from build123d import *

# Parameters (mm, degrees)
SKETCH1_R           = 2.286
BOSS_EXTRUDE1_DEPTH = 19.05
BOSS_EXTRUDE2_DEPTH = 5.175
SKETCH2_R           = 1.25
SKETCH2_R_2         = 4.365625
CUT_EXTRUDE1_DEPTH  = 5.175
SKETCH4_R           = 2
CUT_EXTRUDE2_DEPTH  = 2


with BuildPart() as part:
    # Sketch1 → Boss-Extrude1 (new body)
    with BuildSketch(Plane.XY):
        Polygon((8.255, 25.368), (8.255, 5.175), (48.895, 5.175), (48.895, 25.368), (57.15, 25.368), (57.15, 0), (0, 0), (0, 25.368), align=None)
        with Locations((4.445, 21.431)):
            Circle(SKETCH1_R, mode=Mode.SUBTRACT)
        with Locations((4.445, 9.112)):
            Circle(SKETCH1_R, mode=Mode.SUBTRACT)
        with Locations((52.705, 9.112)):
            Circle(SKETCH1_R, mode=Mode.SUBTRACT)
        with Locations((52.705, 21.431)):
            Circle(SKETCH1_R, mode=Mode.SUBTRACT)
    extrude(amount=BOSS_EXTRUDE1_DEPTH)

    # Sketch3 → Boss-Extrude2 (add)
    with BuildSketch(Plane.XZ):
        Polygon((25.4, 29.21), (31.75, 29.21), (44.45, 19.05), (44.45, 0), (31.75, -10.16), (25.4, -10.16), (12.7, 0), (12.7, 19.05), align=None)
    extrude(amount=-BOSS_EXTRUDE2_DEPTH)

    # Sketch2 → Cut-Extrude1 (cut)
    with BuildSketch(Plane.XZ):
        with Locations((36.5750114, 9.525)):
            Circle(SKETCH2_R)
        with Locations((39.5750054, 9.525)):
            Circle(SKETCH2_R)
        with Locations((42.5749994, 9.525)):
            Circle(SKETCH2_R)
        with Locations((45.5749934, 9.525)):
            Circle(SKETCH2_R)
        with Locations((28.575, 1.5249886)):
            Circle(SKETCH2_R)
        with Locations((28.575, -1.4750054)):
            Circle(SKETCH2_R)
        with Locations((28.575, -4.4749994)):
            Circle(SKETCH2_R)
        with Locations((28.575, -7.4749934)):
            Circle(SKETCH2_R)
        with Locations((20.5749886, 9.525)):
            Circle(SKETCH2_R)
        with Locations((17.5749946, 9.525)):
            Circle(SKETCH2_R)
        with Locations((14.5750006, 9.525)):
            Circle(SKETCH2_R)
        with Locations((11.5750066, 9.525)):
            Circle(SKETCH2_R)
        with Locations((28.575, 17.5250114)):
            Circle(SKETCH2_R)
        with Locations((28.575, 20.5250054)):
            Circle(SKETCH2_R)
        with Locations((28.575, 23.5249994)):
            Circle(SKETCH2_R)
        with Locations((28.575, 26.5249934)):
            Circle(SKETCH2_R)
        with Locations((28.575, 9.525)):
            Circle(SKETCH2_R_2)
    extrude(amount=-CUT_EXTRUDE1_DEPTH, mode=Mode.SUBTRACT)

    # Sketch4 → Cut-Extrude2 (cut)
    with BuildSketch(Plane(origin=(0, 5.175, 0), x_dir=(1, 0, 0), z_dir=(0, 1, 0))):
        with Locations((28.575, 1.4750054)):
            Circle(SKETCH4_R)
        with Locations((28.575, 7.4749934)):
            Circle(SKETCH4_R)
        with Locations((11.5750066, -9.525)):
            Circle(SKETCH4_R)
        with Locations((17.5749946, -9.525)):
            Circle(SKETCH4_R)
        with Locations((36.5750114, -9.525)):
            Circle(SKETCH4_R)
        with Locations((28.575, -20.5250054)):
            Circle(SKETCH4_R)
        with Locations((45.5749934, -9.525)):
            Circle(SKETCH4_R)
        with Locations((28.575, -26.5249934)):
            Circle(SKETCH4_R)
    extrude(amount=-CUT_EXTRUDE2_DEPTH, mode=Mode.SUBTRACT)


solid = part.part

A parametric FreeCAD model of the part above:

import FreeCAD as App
import Part
import Sketcher
from FreeCAD import Vector
Q = App.Units.Quantity

doc = App.newDocument("Part")
body = doc.addObject("PartDesign::Body", "Body")

# Sketch on XY plane
sketch1 = body.newObject("Sketcher::SketchObject", "Sketch")
sketch1.AttachmentSupport = (doc.getObject("XY_Plane"), [""])
sketch1.MapMode = "FlatFace"
sketch1.addGeometry([
    Part.LineSegment(Vector(8.3, 5.2, 0), Vector(8.3, 25.4, 0)),  # 0
    Part.LineSegment(Vector(8.3, 25.4, 0), Vector(0, 25.4, 0)),  # 1
    Part.LineSegment(Vector(0, 25.4, 0), Vector(0, 0, 0)),  # 2
    Part.LineSegment(Vector(0, 0, 0), Vector(57.1, 0, 0)),  # 3
    Part.LineSegment(Vector(57.1, 0, 0), Vector(57.1, 25.4, 0)),  # 4
    Part.LineSegment(Vector(57.1, 25.4, 0), Vector(48.9, 25.4, 0)),  # 5
    Part.LineSegment(Vector(48.9, 25.4, 0), Vector(48.9, 5.2, 0)),  # 6
    Part.LineSegment(Vector(48.9, 5.2, 0), Vector(8.3, 5.2, 0)),  # 7
    Part.Circle(Vector(52.7, 9.1, 0), Vector(0, 0, 1), 2.3),  # 8
    Part.Circle(Vector(4.4, 9.1, 0), Vector(0, 0, 1), 2.3),  # 9
    Part.Circle(Vector(52.7, 21.4, 0), Vector(0, 0, 1), 2.3),  # 10
    Part.Circle(Vector(4.4, 21.4, 0), Vector(0, 0, 1), 2.3),  # 11
], False)
sketch1.addConstraint([
    Sketcher.Constraint("Coincident", 0, 2, 1, 1),
    Sketcher.Constraint("Coincident", 1, 2, 2, 1),
    Sketcher.Constraint("Coincident", 2, 2, 3, 1),
    Sketcher.Constraint("Coincident", 3, 2, 4, 1),
    Sketcher.Constraint("Coincident", 4, 2, 5, 1),
    Sketcher.Constraint("Coincident", 5, 2, 6, 1),
    Sketcher.Constraint("Coincident", 6, 2, 7, 1),
    Sketcher.Constraint("Coincident", 7, 2, 0, 1),
    Sketcher.Constraint("Vertical", 0),
    Sketcher.Constraint("Horizontal", 1),
    Sketcher.Constraint("Vertical", 2),
    Sketcher.Constraint("Horizontal", 3),
    Sketcher.Constraint("Vertical", 4),
    Sketcher.Constraint("Horizontal", 5),
    Sketcher.Constraint("Vertical", 6),
    Sketcher.Constraint("Horizontal", 7),
    Sketcher.Constraint("Coincident", 2, 2, -1, 1),
    Sketcher.Constraint("Equal", 8, 9),
    Sketcher.Constraint("Equal", 9, 10),
    Sketcher.Constraint("Equal", 10, 11),
    Sketcher.Constraint("Horizontal", 8, 3, 9, 3),
    Sketcher.Constraint("Horizontal", 10, 3, 11, 3),
    Sketcher.Constraint("Horizontal", 1, 2, 4, 2),
    Sketcher.Constraint("Vertical", 8, 3, 10, 3),
    Sketcher.Constraint("Vertical", 9, 3, 11, 3),
    Sketcher.Constraint("Equal", 1, 5),
    Sketcher.Constraint("Diameter", 8, Q("0.18 in")),
    Sketcher.Constraint("DistanceX", 7, 2, 7, 1, Q("1.6 in")),
    Sketcher.Constraint("DistanceX", 3, 1, 3, 2, Q("2.25 in")),
    Sketcher.Constraint("DistanceX", 9, 3, 8, 3, Q("1.9 in")),
    Sketcher.Constraint("DistanceY", 0, 1, 0, 2, Q("0.795 in")),
    Sketcher.Constraint("DistanceX", 11, 3, 0, 2, Q("0.15 in")),
    Sketcher.Constraint("DistanceY", 9, 3, 0, 2, Q("0.64 in")),
    Sketcher.Constraint("DistanceY", 6, 2, 10, 3, Q("0.64 in")),
    Sketcher.Constraint("DistanceY", 2, 2, 2, 1, 25.368),
])
pad1 = body.newObject("PartDesign::Pad", "Pad")
pad1.Profile = sketch1
pad1.Length = Q("0.75 in")

# Sketch on XZ plane
sketch2 = body.newObject("Sketcher::SketchObject", "Sketch001")
sketch2.AttachmentSupport = (doc.getObject("XZ_Plane"), [""])
sketch2.MapMode = "FlatFace"
sketch2.addGeometry([
    Part.LineSegment(Vector(32, 29, 0), Vector(25, 29, 0)),  # 0
    Part.LineSegment(Vector(25, 29, 0), Vector(13, 19, 0)),  # 1
    Part.LineSegment(Vector(13, 19, 0), Vector(13, 0, 0)),  # 2
    Part.LineSegment(Vector(13, 0, 0), Vector(25, -10, 0)),  # 3
    Part.LineSegment(Vector(25, -10, 0), Vector(32, -10, 0)),  # 4
    Part.LineSegment(Vector(32, -10, 0), Vector(44, 0, 0)),  # 5
    Part.LineSegment(Vector(44, 0, 0), Vector(44, 19, 0)),  # 6
    Part.LineSegment(Vector(44, 19, 0), Vector(32, 29, 0)),  # 7
], False)
sketch2.addConstraint([
    Sketcher.Constraint("Coincident", 0, 2, 1, 1),
    Sketcher.Constraint("Coincident", 1, 2, 2, 1),
    Sketcher.Constraint("Coincident", 2, 2, 3, 1),
    Sketcher.Constraint("Coincident", 3, 2, 4, 1),
    Sketcher.Constraint("Coincident", 4, 2, 5, 1),
    Sketcher.Constraint("Coincident", 5, 2, 6, 1),
    Sketcher.Constraint("Coincident", 6, 2, 7, 1),
    Sketcher.Constraint("Coincident", 7, 2, 0, 1),
    Sketcher.Constraint("Horizontal", 0),
    Sketcher.Constraint("Vertical", 2),
    Sketcher.Constraint("Horizontal", 4),
    Sketcher.Constraint("Vertical", 6),
    Sketcher.Constraint("PointOnObject", 2, 2, -1),
    Sketcher.Constraint("PointOnObject", 5, 2, -1),
    Sketcher.Constraint("Parallel", 1, 5),
    Sketcher.Constraint("Parallel", 3, 7),
    Sketcher.Constraint("Horizontal", 1, 2, 6, 2),
    Sketcher.Constraint("Vertical", 0, 2, 3, 2),
    Sketcher.Constraint("Vertical", 4, 2, 7, 2),
    Sketcher.Constraint("DistanceX", -1, 1, 0, 2, Q("1 in")),
    Sketcher.Constraint("DistanceX", 0, 2, 0, 1, Q("0.25 in")),
    Sketcher.Constraint("DistanceY", 2, 2, 2, 1, Q("0.75 in")),
    Sketcher.Constraint("DistanceX", -1, 1, 1, 2, Q("0.5 in")),
    Sketcher.Constraint("DistanceY", 3, 2, -1, 1, Q("0.4 in")),
])
pad2 = body.newObject("PartDesign::Pad", "Pad001")
pad2.Profile = sketch2
pad2.Length = 5.175
pad2.Reversed = True

# Sketch on XZ plane
sketch3 = body.newObject("Sketcher::SketchObject", "Sketch002")
sketch3.AttachmentSupport = (doc.getObject("XZ_Plane"), [""])
sketch3.MapMode = "FlatFace"
sketch3.addGeometry([
    Part.Circle(Vector(36.6, 9.5, 0), Vector(0, 0, 1), 1.2),  # 0
    Part.Circle(Vector(39.6, 9.5, 0), Vector(0, 0, 1), 1.2),  # 1
    Part.Circle(Vector(42.6, 9.5, 0), Vector(0, 0, 1), 1.2),  # 2
    Part.Circle(Vector(45.6, 9.5, 0), Vector(0, 0, 1), 1.2),  # 3
    Part.Circle(Vector(28.6, 1.5, 0), Vector(0, 0, 1), 1.2),  # 4
    Part.Circle(Vector(28.6, -1.5, 0), Vector(0, 0, 1), 1.2),  # 5
    Part.Circle(Vector(28.6, -4.5, 0), Vector(0, 0, 1), 1.2),  # 6
    Part.Circle(Vector(28.6, -7.5, 0), Vector(0, 0, 1), 1.2),  # 7
    Part.Circle(Vector(20.6, 9.5, 0), Vector(0, 0, 1), 1.2),  # 8
    Part.Circle(Vector(17.6, 9.5, 0), Vector(0, 0, 1), 1.2),  # 9
    Part.Circle(Vector(14.6, 9.5, 0), Vector(0, 0, 1), 1.2),  # 10
    Part.Circle(Vector(11.6, 9.5, 0), Vector(0, 0, 1), 1.2),  # 11
    Part.Circle(Vector(28.6, 17.5, 0), Vector(0, 0, 1), 1.2),  # 12
    Part.Circle(Vector(28.6, 20.5, 0), Vector(0, 0, 1), 1.2),  # 13
    Part.Circle(Vector(28.6, 23.5, 0), Vector(0, 0, 1), 1.2),  # 14
    Part.Circle(Vector(28.6, 26.5, 0), Vector(0, 0, 1), 1.2),  # 15
    Part.Circle(Vector(28.6, 9.5, 0), Vector(0, 0, 1), 4.4),  # 16
], False)
sketch3.addConstraint([
    Sketcher.Constraint("Equal", 0, 1),
    Sketcher.Constraint("Equal", 1, 2),
    Sketcher.Constraint("Equal", 2, 3),
    Sketcher.Constraint("Equal", 3, 4),
    Sketcher.Constraint("Equal", 4, 5),
    Sketcher.Constraint("Equal", 5, 6),
    Sketcher.Constraint("Equal", 6, 7),
    Sketcher.Constraint("Equal", 7, 8),
    Sketcher.Constraint("Equal", 8, 9),
    Sketcher.Constraint("Equal", 9, 10),
    Sketcher.Constraint("Equal", 10, 11),
    Sketcher.Constraint("Equal", 11, 12),
    Sketcher.Constraint("Equal", 12, 13),
    Sketcher.Constraint("Equal", 13, 14),
    Sketcher.Constraint("Equal", 14, 15),
    Sketcher.Constraint("Horizontal", 0, 3, 1, 3),
    Sketcher.Constraint("Horizontal", 1, 3, 2, 3),
    Sketcher.Constraint("Horizontal", 2, 3, 3, 3),
    Sketcher.Constraint("Horizontal", 3, 3, 8, 3),
    Sketcher.Constraint("Horizontal", 8, 3, 9, 3),
    Sketcher.Constraint("Horizontal", 9, 3, 10, 3),
    Sketcher.Constraint("Horizontal", 10, 3, 11, 3),
    Sketcher.Constraint("Horizontal", 11, 3, 16, 3),
    Sketcher.Constraint("Vertical", 4, 3, 5, 3),
    Sketcher.Constraint("Vertical", 5, 3, 6, 3),
    Sketcher.Constraint("Vertical", 6, 3, 7, 3),
    Sketcher.Constraint("Vertical", 7, 3, 12, 3),
    Sketcher.Constraint("Vertical", 12, 3, 13, 3),
    Sketcher.Constraint("Vertical", 13, 3, 14, 3),
    Sketcher.Constraint("Vertical", 14, 3, 15, 3),
    Sketcher.Constraint("Vertical", 15, 3, 16, 3),
    Sketcher.Constraint("Diameter", 16, Q("0.34375 in")),
    Sketcher.Constraint("Diameter", 0, 2.5),
    Sketcher.Constraint("DistanceY", -1, 1, 0, 3, Q("0.375 in")),
    Sketcher.Constraint("DistanceX", -1, 1, 4, 3, Q("1.125 in")),
    Sketcher.Constraint("DistanceX", -1, 1, 2, 3, 42.574999),
    Sketcher.Constraint("DistanceY", 6, 3, -1, 1, 4.474999),
    Sketcher.Constraint("DistanceX", -1, 1, 10, 3, 14.575001),
    Sketcher.Constraint("DistanceY", -1, 1, 14, 3, 23.524999),
    Sketcher.Constraint("DistanceX", -1, 1, 0, 3, 36.575011),
    Sketcher.Constraint("DistanceY", -1, 1, 4, 3, 1.524989),
    Sketcher.Constraint("DistanceX", -1, 1, 8, 3, 20.574989),
    Sketcher.Constraint("DistanceY", -1, 1, 12, 3, 17.525011),
    Sketcher.Constraint("DistanceX", 0, 3, 3, 3, 8.999982),
    Sketcher.Constraint("DistanceY", 7, 3, 4, 3, 8.999982),
    Sketcher.Constraint("DistanceY", 12, 3, 15, 3, 8.999982),
    Sketcher.Constraint("DistanceX", -1, 1, 1, 3, 39.575005),
    Sketcher.Constraint("DistanceY", 5, 3, -1, 1, 1.475005),
    Sketcher.Constraint("DistanceX", -1, 1, 9, 3, 17.574995),
    Sketcher.Constraint("DistanceX", -1, 1, 11, 3, 11.575007),
    Sketcher.Constraint("DistanceY", -1, 1, 13, 3, 20.525005),
])
pocket1 = body.newObject("PartDesign::Pocket", "Pocket")
pocket1.Profile = sketch3
pocket1.Length = 5.175

# Sketch on XZ plane
sketch4 = body.newObject("Sketcher::SketchObject", "Sketch003")
sketch4.AttachmentSupport = (doc.getObject("XZ_Plane"), [""])
sketch4.MapMode = "FlatFace"
sketch4.AttachmentOffset = App.Placement(Vector(0, 0, -5.175), App.Rotation())
sketch4.addGeometry([
    Part.Circle(Vector(28.6, -1.5, 0), Vector(0, 0, 1), 2),  # 0
    Part.Circle(Vector(28.6, -7.5, 0), Vector(0, 0, 1), 2),  # 1
    Part.Circle(Vector(11.6, 9.5, 0), Vector(0, 0, 1), 2),  # 2
    Part.Circle(Vector(17.6, 9.5, 0), Vector(0, 0, 1), 2),  # 3
    Part.Circle(Vector(36.6, 9.5, 0), Vector(0, 0, 1), 2),  # 4
    Part.Circle(Vector(28.6, 20.5, 0), Vector(0, 0, 1), 2),  # 5
    Part.Circle(Vector(45.6, 9.5, 0), Vector(0, 0, 1), 2),  # 6
    Part.Circle(Vector(28.6, 26.5, 0), Vector(0, 0, 1), 2),  # 7
], False)
sketch4.addConstraint([
    Sketcher.Constraint("Equal", 0, 1),
    Sketcher.Constraint("Equal", 1, 2),
    Sketcher.Constraint("Equal", 2, 3),
    Sketcher.Constraint("Equal", 3, 4),
    Sketcher.Constraint("Equal", 4, 5),
    Sketcher.Constraint("Equal", 5, 6),
    Sketcher.Constraint("Equal", 6, 7),
    Sketcher.Constraint("Horizontal", 2, 3, 3, 3),
    Sketcher.Constraint("Horizontal", 3, 3, 4, 3),
    Sketcher.Constraint("Horizontal", 4, 3, 6, 3),
    Sketcher.Constraint("Vertical", 0, 3, 1, 3),
    Sketcher.Constraint("Vertical", 1, 3, 5, 3),
    Sketcher.Constraint("Vertical", 5, 3, 7, 3),
    Sketcher.Constraint("Diameter", 0, 4.0),
    Sketcher.Constraint("DistanceX", -1, 1, 0, 3, Q("1.125 in")),
    Sketcher.Constraint("DistanceY", -1, 1, 2, 3, Q("0.375 in")),
    Sketcher.Constraint("DistanceY", 1, 3, 5, 3, 27.999999),
    Sketcher.Constraint("DistanceX", 3, 3, 6, 3, 27.999999),
    Sketcher.Constraint("DistanceX", -1, 1, 4, 3, 36.575011),
    Sketcher.Constraint("DistanceY", 0, 3, 5, 3, 22.000011),
    Sketcher.Constraint("DistanceX", 4, 3, 6, 3, 8.999982),
    Sketcher.Constraint("DistanceY", 0, 3, -1, 1, 1.475005),
    Sketcher.Constraint("DistanceX", -1, 1, 2, 3, 11.575007),
    Sketcher.Constraint("DistanceY", -1, 1, 7, 3, 26.524993),
])
pocket2 = body.newObject("PartDesign::Pocket", "Pocket001")
pocket2.Profile = sketch4
pocket2.Length = 2
pocket2.Reversed = True

doc.recompute()
